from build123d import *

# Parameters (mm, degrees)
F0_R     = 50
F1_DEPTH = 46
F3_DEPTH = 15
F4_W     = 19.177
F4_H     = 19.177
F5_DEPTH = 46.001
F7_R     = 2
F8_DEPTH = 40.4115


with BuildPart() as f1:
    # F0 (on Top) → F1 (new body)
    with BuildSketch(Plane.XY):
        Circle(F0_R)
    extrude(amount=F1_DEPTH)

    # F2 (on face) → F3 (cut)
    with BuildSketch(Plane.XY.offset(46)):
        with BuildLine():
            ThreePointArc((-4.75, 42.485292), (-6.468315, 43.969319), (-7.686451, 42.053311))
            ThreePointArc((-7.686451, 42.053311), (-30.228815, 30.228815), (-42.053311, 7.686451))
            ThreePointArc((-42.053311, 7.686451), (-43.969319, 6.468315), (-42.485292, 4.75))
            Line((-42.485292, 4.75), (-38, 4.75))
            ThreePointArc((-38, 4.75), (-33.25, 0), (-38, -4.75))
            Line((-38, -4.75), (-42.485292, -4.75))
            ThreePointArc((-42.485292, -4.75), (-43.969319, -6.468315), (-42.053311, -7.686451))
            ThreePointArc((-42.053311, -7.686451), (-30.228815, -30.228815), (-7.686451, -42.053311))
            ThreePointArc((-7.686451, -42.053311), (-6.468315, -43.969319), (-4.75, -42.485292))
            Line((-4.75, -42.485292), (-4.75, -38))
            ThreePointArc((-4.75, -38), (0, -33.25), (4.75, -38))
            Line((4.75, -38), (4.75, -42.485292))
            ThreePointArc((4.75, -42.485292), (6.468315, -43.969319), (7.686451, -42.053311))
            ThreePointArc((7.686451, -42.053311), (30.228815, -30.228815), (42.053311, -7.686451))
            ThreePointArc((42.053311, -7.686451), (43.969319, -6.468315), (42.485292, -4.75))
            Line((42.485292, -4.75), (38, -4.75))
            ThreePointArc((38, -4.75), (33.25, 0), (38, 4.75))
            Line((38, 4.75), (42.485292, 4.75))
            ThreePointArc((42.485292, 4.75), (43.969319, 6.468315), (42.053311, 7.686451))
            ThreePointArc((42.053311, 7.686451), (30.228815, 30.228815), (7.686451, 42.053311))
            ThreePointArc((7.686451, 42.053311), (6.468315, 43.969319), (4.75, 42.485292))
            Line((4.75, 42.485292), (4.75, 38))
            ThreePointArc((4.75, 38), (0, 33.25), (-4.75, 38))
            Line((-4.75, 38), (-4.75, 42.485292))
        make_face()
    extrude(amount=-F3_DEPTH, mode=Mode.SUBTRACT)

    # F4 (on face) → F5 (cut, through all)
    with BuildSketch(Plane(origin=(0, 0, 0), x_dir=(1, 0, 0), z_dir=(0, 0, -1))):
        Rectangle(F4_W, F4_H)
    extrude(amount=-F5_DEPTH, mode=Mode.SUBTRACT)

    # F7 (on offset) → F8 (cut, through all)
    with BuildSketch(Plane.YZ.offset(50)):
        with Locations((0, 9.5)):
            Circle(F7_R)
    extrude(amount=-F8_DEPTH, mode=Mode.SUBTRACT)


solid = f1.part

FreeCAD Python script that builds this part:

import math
import FreeCAD as App
import Part
import Sketcher
Q = App.Units.Quantity

doc = App.newDocument("Part")
params = doc.addObject("Spreadsheet::Sheet", "Params")
for row, (alias, value) in enumerate([
    ("sketch1_diameter", "100 mm"),
    ("pad1_length", "46 mm"),
    ("sketch2_radius", "1.5 mm"),
    ("sketch2_radius2", "42.749999 mm"),
    ("sketch2_radius3", "4.75 mm"),
    ("pocket1_length", "15 mm"),
    ("sketch4_diameter", "4 mm"),
    ("pocket3_length", "40.4115 mm"),
], start=1):
    params.set(f"A{row}", alias)
    params.set(f"B{row}", "=" + value)
    params.setAlias(f"B{row}", alias)

body = doc.addObject("PartDesign::Body", "Body")

sketch1 = doc.addObject("Sketcher::SketchObject", "Sketch")
body.addObject(sketch1)
sketch1.AttachmentSupport = (doc.XY_Plane, [""])
sketch1.MapMode = "FlatFace"
sketch1.addGeometry(Part.Circle(App.Vector(0, 0, 0), App.Vector(0, 0, 1), 50), False)
sketch1.addConstraint([
    Sketcher.Constraint("Coincident", 0, 3, -1, 1),
    Sketcher.Constraint("Diameter", 0, Q("100 mm")),
])
sketch1.setExpression("Constraints[1]", "Params.sketch1_diameter")
pad1 = doc.addObject("PartDesign::Pad", "Pad")
body.addObject(pad1)
pad1.Profile = sketch1
pad1.setExpression("Length", "Params.pad1_length")

sketch2 = doc.addObject("Sketcher::SketchObject", "Sketch001")
body.addObject(sketch2)
sketch2.AttachmentSupport = (doc.XY_Plane, [""])
sketch2.MapMode = "FlatFace"
sketch2.AttachmentOffset = App.Placement(App.Vector(0, 0, 46), App.Rotation())
sketch2.addGeometry([
    Part.ArcOfCircle(Part.Circle(App.Vector(-6.2, 42.5, 0), App.Vector(0, 0, 1), 1.5), math.radians(0), math.radians(197)),
    Part.ArcOfCircle(Part.Circle(App.Vector(0, 0, 0), App.Vector(0, 0, 1), 42.7), math.radians(100), math.radians(170)),
    Part.ArcOfCircle(Part.Circle(App.Vector(-42.5, 6.2, 0), App.Vector(0, 0, 1), 1.5), math.radians(73), math.radians(270)),
    Part.LineSegment(App.Vector(-42.5, 4.8, 0), App.Vector(-38, 4.8, 0)),
    Part.ArcOfCircle(Part.Circle(App.Vector(-38, 0, 0), App.Vector(0, 0, 1), 4.8), math.radians(-90), math.radians(90)),
    Part.LineSegment(App.Vector(-38, -4.8, 0), App.Vector(-42.5, -4.8, 0)),
    Part.ArcOfCircle(Part.Circle(App.Vector(-42.5, -6.2, 0), App.Vector(0, 0, 1), 1.5), math.radians(90), math.radians(287)),
    Part.ArcOfCircle(Part.Circle(App.Vector(0, 0, 0), App.Vector(0, 0, 1), 42.7), math.radians(-170), math.radians(-100)),
    Part.ArcOfCircle(Part.Circle(App.Vector(-6.2, -42.5, 0), App.Vector(0, 0, 1), 1.5), math.radians(163), math.radians(360)),
    Part.LineSegment(App.Vector(-4.8, -42.5, 0), App.Vector(-4.8, -38, 0)),
    Part.ArcOfCircle(Part.Circle(App.Vector(0, -38, 0), App.Vector(0, 0, 1), 4.8), math.radians(0), math.radians(180)),
    Part.LineSegment(App.Vector(4.8, -38, 0), App.Vector(4.8, -42.5, 0)),
    Part.ArcOfCircle(Part.Circle(App.Vector(6.2, -42.5, 0), App.Vector(0, 0, 1), 1.5), math.radians(-180), math.radians(17)),
    Part.ArcOfCircle(Part.Circle(App.Vector(0, 0, 0), App.Vector(0, 0, 1), 42.7), math.radians(-80), math.radians(-10)),
    Part.ArcOfCircle(Part.Circle(App.Vector(42.5, -6.2, 0), App.Vector(0, 0, 1), 1.5), math.radians(-107), math.radians(90)),
    Part.LineSegment(App.Vector(42.5, -4.8, 0), App.Vector(38, -4.8, 0)),
    Part.ArcOfCircle(Part.Circle(App.Vector(38, 0, 0), App.Vector(0, 0, 1), 4.8), math.radians(90), math.radians(270)),
    Part.LineSegment(App.Vector(38, 4.8, 0), App.Vector(42.5, 4.8, 0)),
    Part.ArcOfCircle(Part.Circle(App.Vector(42.5, 6.2, 0), App.Vector(0, 0, 1), 1.5), math.radians(-90), math.radians(107)),
    Part.ArcOfCircle(Part.Circle(App.Vector(0, 0, 0), App.Vector(0, 0, 1), 42.7), math.radians(10), math.radians(80)),
    Part.ArcOfCircle(Part.Circle(App.Vector(6.2, 42.5, 0), App.Vector(0, 0, 1), 1.5), math.radians(-17), math.radians(180)),
    Part.LineSegment(App.Vector(4.8, 42.5, 0), App.Vector(4.8, 38, 0)),
    Part.ArcOfCircle(Part.Circle(App.Vector(0, 38, 0), App.Vector(0, 0, 1), 4.8), math.radians(180), math.radians(360)),
    Part.LineSegment(App.Vector(-4.8, 38, 0), App.Vector(-4.8, 42.5, 0)),
], False)
sketch2.addConstraint([
    Sketcher.Constraint("Coincident", 0, 2, 1, 1),
    Sketcher.Constraint("Coincident", 1, 2, 2, 1),
    Sketcher.Constraint("Tangent", 2, 2, 3, 1),
    Sketcher.Constraint("Tangent", 3, 2, 4, 2),
    Sketcher.Constraint("Tangent", 4, 1, 5, 1),
    Sketcher.Constraint("Tangent", 5, 2, 6, 1),
    Sketcher.Constraint("Coincident", 6, 2, 7, 1),
    Sketcher.Constraint("Coincident", 7, 2, 8, 1),
    Sketcher.Constraint("Tangent", 8, 2, 9, 1),
    Sketcher.Constraint("Tangent", 9, 2, 10, 2),
    Sketcher.Constraint("Tangent", 10, 1, 11, 1),
    Sketcher.Constraint("Tangent", 11, 2, 12, 1),
    Sketcher.Constraint("Coincident", 12, 2, 13, 1),
    Sketcher.Constraint("Coincident", 13, 2, 14, 1),
    Sketcher.Constraint("Tangent", 14, 2, 15, 1),
    Sketcher.Constraint("Tangent", 15, 2, 16, 2),
    Sketcher.Constraint("Tangent", 16, 1, 17, 1),
    Sketcher.Constraint("Tangent", 17, 2, 18, 1),
    Sketcher.Constraint("Coincident", 18, 2, 19, 1),
    Sketcher.Constraint("Coincident", 19, 2, 20, 1),
    Sketcher.Constraint("Tangent", 20, 2, 21, 1),
    Sketcher.Constraint("Tangent", 21, 2, 22, 2),
    Sketcher.Constraint("Tangent", 22, 1, 23, 1),
    Sketcher.Constraint("Tangent", 23, 2, 0, 1),
    Sketcher.Constraint("Horizontal", 3),
    Sketcher.Constraint("Horizontal", 5),
    Sketcher.Constraint("Vertical", 9),
    Sketcher.Constraint("Vertical", 11),
    Sketcher.Constraint("Horizontal", 15),
    Sketcher.Constraint("Horizontal", 17),
    Sketcher.Constraint("Vertical", 21),
    Sketcher.Constraint("Vertical", 23),
    Sketcher.Constraint("Coincident", 1, 3, -1, 1),
    Sketcher.Constraint("Coincident", 7, 3, -1, 1),
    Sketcher.Constraint("Coincident", 13, 3, -1, 1),
    Sketcher.Constraint("Coincident", 19, 3, -1, 1),
    Sketcher.Constraint("Equal", 0, 2),
    Sketcher.Constraint("Equal", 2, 6),
    Sketcher.Constraint("Equal", 1, 7),
    Sketcher.Constraint("Equal", 6, 8),
    Sketcher.Constraint("Equal", 4, 10),
    Sketcher.Constraint("Equal", 8, 12),
    Sketcher.Constraint("Equal", 7, 13),
    Sketcher.Constraint("Equal", 12, 14),
    Sketcher.Constraint("Equal", 10, 16),
    Sketcher.Constraint("Equal", 14, 18),
    Sketcher.Constraint("Equal", 13, 19),
    Sketcher.Constraint("Equal", 18, 20),
    Sketcher.Constraint("Equal", 16, 22),
    Sketcher.Constraint("Symmetric", 0, 3, 12, 3, -1, 1),
    Sketcher.Constraint("Symmetric", 2, 3, 14, 3, -1, 1),
    Sketcher.Constraint("Symmetric", 8, 3, 12, 3, -2),
    Sketcher.Constraint("Symmetric", 6, 3, 14, 3, -2),
    Sketcher.Constraint("Horizontal", 0, 3, 20, 3),
    Sketcher.Constraint("Horizontal", 1, 2, 18, 2),
    Sketcher.Constraint("Equal", 5, 15),
    Sketcher.Constraint("Equal", 17, 9),
    Sketcher.Constraint("Equal", 11, 21),
    Sketcher.Constraint("Radius", 0, Q("1.5 mm")),
    Sketcher.Constraint("Radius", 1, Q("42.749999 mm")),
    Sketcher.Constraint("Radius", 4, Q("4.75 mm")),
    Sketcher.Constraint("DistanceX", 4, 3, -1, 1, Q("38 mm")),
    Sketcher.Constraint("DistanceY", 10, 3, -1, 1, Q("38 mm")),
    Sketcher.Constraint("DistanceX", 3, 1, 3, 2, Q("4.485292 mm")),
])
sketch2.setExpression("Constraints[58]", "Params.sketch2_radius")
sketch2.setExpression("Constraints[59]", "Params.sketch2_radius2")
sketch2.setExpression("Constraints[60]", "Params.sketch2_radius3")
pocket1 = doc.addObject("PartDesign::Pocket", "Pocket")
body.addObject(pocket1)
pocket1.Profile = sketch2
pocket1.setExpression("Length", "Params.pocket1_length")

sketch3 = doc.addObject("Sketcher::SketchObject", "Sketch002")
body.addObject(sketch3)
sketch3.AttachmentSupport = (doc.XY_Plane, [""])
sketch3.MapMode = "FlatFace"
sketch3.addGeometry([
    Part.LineSegment(App.Vector(-10, -10, 0), App.Vector(-10, 10, 0)),
    Part.LineSegment(App.Vector(-10, 10, 0), App.Vector(10, 10, 0)),
    Part.LineSegment(App.Vector(10, 10, 0), App.Vector(10, -10, 0)),
    Part.LineSegment(App.Vector(10, -10, 0), App.Vector(-10, -10, 0)),
], False)
sketch3.addConstraint([
    Sketcher.Constraint("Coincident", 0, 2, 1, 1),
    Sketcher.Constraint("Coincident", 1, 2, 2, 1),
    Sketcher.Constraint("Coincident", 2, 2, 3, 1),
    Sketcher.Constraint("Coincident", 3, 2, 0, 1),
    Sketcher.Constraint("Vertical", 0),
    Sketcher.Constraint("Horizontal", 1),
    Sketcher.Constraint("Vertical", 2),
    Sketcher.Constraint("Horizontal", 3),
    Sketcher.Constraint("Symmetric", 0, 2, 2, 2, -1, 1),
    Sketcher.Constraint("Equal", 3, 0),
    Sketcher.Constraint("DistanceX", 1, 1, 1, 2, Q("19.177 mm")),
])
pocket2 = doc.addObject("PartDesign::Pocket", "Pocket001")
body.addObject(pocket2)
pocket2.Profile = sketch3
pocket2.Type = "ThroughAll"
pocket2.Reversed = True

sketch4 = doc.addObject("Sketcher::SketchObject", "Sketch003")
body.addObject(sketch4)
sketch4.AttachmentSupport = (doc.YZ_Plane, [""])
sketch4.MapMode = "FlatFace"
sketch4.AttachmentOffset = App.Placement(App.Vector(0, 0, 50), App.Rotation())
sketch4.addGeometry(Part.Circle(App.Vector(0, 9.5, 0), App.Vector(0, 0, 1), 2), False)
sketch4.addConstraint([
    Sketcher.Constraint("PointOnObject", 0, 3, -2),
    Sketcher.Constraint("Diameter", 0, Q("4 mm")),
    Sketcher.Constraint("DistanceY", -1, 1, 0, 3, Q("9.5 mm")),
])
sketch4.setExpression("Constraints[1]", "Params.sketch4_diameter")
pocket3 = doc.addObject("PartDesign::Pocket", "Pocket002")
body.addObject(pocket3)
pocket3.Profile = sketch4
pocket3.setExpression("Length", "Params.pocket3_length")

doc.recompute()
